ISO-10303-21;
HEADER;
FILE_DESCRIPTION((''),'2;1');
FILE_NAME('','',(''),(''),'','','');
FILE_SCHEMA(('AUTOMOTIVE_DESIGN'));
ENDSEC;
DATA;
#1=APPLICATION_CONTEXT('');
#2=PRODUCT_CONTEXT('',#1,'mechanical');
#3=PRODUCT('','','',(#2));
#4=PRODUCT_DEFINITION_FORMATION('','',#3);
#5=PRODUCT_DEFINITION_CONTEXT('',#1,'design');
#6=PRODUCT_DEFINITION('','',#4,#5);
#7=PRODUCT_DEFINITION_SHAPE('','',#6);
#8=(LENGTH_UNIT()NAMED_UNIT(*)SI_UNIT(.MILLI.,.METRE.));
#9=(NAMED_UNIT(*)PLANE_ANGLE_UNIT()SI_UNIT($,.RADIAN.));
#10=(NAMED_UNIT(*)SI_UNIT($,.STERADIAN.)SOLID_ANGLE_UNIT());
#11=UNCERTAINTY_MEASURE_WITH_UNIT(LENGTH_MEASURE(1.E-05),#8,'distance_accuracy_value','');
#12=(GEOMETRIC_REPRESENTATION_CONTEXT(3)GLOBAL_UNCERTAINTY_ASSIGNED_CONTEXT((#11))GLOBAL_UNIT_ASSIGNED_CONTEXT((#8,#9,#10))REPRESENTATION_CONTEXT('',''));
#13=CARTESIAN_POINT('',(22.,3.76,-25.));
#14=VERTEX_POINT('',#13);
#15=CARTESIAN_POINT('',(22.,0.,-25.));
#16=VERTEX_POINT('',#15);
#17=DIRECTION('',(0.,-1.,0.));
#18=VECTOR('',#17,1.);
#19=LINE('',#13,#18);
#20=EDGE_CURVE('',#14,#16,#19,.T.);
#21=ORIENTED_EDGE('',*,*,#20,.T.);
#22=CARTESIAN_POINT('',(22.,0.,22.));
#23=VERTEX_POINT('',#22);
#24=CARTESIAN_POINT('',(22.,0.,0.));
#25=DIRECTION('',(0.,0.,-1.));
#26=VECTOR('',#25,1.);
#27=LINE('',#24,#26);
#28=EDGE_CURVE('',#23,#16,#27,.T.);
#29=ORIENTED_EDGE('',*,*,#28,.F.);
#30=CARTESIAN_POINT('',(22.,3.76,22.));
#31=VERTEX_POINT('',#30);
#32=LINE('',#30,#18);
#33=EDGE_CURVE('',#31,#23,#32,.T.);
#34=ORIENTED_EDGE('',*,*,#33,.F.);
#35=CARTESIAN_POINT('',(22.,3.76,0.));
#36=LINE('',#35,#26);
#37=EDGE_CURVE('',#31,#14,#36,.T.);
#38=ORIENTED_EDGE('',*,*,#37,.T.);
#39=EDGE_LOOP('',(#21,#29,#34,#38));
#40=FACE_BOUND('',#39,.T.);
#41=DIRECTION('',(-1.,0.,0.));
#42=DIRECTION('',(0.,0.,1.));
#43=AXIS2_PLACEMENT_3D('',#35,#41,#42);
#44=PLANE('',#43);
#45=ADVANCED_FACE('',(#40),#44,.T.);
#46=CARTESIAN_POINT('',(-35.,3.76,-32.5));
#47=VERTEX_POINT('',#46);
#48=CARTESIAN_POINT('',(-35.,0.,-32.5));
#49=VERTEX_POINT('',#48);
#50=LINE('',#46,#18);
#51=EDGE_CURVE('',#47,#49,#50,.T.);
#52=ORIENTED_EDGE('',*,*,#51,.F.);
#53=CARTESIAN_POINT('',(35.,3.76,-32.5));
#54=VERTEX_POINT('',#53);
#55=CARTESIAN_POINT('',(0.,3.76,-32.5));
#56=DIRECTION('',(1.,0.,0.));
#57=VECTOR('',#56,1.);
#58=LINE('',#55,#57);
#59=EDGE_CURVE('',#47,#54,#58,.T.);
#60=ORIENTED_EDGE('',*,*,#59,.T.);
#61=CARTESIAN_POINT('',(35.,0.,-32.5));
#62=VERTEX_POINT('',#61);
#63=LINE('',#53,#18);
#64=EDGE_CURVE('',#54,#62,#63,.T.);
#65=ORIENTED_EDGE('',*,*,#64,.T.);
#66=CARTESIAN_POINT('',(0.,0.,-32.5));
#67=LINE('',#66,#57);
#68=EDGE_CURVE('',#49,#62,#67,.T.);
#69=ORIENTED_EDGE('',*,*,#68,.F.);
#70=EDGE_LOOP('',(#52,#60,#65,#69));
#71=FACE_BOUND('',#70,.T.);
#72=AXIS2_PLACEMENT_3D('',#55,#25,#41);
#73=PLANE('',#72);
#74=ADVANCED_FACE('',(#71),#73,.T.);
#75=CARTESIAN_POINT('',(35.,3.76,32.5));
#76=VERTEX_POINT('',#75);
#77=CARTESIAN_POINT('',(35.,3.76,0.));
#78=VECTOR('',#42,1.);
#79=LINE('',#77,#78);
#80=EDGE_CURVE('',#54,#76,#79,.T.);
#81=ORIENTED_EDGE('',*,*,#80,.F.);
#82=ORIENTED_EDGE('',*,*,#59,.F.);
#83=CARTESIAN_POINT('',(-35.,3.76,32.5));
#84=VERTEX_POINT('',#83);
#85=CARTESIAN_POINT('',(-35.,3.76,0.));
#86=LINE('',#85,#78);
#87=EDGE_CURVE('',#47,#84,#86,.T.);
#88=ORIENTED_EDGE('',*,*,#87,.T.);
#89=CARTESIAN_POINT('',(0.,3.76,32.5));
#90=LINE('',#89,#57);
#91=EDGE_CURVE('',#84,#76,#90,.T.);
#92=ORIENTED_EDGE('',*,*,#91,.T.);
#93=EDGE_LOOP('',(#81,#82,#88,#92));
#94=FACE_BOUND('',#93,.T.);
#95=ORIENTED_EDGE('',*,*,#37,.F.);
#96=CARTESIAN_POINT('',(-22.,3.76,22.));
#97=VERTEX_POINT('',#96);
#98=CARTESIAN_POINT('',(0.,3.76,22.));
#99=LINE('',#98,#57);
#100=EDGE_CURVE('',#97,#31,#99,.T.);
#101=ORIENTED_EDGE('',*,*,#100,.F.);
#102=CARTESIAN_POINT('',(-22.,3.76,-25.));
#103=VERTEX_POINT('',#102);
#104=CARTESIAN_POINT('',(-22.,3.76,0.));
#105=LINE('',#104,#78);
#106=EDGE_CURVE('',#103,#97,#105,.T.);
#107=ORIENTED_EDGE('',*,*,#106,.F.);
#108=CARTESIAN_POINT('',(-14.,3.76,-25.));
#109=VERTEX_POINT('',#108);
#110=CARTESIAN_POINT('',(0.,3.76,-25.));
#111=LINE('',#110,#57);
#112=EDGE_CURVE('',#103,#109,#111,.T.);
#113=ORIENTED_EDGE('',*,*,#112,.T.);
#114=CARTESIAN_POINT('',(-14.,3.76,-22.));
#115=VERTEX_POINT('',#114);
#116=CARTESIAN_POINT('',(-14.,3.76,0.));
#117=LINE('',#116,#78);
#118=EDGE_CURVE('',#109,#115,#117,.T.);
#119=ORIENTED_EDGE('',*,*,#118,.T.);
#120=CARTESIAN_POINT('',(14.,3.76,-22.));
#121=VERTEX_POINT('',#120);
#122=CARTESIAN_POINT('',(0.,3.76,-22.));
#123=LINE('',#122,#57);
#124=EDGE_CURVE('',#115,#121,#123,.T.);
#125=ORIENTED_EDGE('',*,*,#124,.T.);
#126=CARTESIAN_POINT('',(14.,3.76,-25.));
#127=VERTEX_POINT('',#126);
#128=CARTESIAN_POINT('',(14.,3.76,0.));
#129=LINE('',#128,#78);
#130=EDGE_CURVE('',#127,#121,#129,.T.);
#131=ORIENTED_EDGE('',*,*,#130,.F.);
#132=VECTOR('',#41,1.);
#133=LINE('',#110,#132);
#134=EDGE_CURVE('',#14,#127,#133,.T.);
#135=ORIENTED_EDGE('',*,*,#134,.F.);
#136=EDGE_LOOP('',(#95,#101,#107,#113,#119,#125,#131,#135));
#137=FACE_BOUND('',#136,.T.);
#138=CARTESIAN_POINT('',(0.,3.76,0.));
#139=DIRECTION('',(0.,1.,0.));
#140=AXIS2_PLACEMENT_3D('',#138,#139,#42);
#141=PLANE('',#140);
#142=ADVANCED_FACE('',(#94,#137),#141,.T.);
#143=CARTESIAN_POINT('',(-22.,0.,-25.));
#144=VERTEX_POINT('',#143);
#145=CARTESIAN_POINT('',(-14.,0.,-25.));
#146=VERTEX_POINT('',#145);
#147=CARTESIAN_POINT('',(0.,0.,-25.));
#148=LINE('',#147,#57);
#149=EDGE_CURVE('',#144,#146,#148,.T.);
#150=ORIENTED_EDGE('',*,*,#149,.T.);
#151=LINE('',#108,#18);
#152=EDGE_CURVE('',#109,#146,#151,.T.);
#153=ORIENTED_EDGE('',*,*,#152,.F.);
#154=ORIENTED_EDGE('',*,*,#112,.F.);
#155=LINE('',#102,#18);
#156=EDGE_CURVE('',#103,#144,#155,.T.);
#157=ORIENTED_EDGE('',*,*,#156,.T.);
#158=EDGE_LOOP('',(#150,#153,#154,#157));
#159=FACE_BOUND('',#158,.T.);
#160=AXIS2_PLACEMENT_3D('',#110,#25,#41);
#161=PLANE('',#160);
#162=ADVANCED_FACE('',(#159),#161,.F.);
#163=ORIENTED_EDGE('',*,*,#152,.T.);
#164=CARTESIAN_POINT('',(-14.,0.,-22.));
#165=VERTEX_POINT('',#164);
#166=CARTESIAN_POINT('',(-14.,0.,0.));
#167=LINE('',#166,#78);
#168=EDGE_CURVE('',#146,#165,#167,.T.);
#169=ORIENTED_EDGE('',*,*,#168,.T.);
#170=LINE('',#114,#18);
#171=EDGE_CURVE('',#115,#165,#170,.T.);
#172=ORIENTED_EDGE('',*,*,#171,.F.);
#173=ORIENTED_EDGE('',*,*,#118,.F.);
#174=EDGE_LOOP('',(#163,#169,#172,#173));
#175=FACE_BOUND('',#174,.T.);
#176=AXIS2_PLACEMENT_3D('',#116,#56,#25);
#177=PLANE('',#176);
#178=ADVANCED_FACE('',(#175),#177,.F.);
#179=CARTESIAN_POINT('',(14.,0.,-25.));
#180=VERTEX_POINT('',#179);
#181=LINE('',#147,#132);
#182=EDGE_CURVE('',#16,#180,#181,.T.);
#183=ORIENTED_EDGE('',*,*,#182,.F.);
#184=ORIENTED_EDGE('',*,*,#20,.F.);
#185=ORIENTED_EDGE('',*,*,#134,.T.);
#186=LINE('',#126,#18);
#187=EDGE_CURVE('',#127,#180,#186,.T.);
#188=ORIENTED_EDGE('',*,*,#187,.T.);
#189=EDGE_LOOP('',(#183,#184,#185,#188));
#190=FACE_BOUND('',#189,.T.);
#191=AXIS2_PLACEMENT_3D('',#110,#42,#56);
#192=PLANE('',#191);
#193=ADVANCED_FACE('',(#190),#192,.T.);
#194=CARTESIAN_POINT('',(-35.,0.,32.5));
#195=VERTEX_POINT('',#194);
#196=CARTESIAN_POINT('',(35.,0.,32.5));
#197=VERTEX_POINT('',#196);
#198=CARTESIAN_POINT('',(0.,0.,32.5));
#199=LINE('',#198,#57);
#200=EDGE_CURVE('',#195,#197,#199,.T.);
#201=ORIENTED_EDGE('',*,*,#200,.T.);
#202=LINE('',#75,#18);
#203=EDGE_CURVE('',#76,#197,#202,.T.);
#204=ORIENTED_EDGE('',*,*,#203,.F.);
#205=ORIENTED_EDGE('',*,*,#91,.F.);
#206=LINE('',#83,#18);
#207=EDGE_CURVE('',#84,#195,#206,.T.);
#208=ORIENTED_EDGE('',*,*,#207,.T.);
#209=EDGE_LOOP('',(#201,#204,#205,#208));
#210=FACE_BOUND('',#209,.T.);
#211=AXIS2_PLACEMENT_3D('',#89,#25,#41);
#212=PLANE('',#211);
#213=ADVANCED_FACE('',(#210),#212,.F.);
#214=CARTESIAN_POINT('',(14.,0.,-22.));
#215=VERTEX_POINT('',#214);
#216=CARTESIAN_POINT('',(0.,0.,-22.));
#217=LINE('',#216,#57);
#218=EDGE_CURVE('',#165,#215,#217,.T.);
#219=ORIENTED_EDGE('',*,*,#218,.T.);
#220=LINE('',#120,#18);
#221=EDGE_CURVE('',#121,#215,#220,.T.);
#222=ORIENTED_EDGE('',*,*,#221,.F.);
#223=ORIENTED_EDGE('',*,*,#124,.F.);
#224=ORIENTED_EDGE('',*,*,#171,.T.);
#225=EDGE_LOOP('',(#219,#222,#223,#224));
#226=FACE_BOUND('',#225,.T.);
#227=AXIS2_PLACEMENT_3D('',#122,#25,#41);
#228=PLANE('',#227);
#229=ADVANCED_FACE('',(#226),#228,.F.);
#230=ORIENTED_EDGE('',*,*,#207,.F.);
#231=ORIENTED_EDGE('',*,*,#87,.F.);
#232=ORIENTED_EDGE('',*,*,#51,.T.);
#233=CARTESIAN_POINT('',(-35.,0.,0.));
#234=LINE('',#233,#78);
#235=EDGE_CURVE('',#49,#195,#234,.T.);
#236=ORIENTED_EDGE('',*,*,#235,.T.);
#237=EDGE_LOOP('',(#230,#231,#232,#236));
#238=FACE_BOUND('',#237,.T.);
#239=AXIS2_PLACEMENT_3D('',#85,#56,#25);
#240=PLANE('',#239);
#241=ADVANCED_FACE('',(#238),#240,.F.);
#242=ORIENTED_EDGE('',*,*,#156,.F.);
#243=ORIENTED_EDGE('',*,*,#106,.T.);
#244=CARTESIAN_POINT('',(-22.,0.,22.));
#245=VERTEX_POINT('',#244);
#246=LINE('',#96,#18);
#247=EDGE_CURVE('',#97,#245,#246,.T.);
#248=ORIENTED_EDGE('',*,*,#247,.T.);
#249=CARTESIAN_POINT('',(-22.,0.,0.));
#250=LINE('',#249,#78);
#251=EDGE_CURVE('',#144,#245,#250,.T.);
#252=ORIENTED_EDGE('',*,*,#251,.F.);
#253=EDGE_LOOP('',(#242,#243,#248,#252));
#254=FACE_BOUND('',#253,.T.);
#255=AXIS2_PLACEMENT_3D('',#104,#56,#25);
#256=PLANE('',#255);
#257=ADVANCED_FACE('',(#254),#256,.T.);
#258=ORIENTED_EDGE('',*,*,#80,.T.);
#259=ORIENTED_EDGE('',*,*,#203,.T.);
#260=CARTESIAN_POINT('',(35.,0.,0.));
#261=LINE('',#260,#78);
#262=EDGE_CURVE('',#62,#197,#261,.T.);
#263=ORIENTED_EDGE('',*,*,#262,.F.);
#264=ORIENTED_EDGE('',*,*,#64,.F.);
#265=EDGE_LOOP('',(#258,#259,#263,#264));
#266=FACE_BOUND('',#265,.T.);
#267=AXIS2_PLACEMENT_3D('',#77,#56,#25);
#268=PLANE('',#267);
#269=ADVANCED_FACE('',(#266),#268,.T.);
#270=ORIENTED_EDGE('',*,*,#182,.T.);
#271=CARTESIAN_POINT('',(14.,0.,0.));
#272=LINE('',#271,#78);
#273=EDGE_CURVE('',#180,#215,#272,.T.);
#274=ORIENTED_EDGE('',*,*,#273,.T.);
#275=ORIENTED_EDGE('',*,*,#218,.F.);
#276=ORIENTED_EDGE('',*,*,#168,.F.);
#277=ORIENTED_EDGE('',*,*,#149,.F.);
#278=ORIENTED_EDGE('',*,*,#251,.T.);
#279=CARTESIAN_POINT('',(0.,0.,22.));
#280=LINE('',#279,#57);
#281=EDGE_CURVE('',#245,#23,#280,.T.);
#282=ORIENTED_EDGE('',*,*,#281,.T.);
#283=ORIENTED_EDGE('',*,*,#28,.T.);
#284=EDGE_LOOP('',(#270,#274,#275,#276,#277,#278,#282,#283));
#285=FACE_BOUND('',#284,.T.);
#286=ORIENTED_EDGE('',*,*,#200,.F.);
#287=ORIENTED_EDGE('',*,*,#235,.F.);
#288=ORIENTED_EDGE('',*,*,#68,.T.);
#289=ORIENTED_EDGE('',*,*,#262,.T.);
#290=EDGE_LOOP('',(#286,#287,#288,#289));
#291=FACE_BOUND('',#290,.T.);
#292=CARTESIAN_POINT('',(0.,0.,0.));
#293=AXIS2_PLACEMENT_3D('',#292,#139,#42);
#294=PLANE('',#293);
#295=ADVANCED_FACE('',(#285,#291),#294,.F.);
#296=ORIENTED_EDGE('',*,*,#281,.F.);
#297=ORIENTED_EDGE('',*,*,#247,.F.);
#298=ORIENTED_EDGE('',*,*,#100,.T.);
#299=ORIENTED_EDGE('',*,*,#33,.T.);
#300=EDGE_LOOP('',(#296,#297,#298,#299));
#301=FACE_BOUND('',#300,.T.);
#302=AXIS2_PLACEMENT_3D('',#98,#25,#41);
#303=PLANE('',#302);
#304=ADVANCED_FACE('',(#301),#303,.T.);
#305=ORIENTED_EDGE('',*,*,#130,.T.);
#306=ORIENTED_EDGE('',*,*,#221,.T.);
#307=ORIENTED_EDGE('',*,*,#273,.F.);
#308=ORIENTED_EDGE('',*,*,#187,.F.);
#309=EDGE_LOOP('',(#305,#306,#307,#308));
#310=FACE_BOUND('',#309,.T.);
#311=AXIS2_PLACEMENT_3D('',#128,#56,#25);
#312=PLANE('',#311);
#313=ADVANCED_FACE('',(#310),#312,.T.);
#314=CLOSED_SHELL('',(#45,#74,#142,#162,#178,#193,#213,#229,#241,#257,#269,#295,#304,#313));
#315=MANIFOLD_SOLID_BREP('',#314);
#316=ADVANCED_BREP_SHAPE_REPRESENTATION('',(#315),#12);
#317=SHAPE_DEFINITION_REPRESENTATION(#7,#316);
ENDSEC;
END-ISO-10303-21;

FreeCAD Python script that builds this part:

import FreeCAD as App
import Part
import Sketcher

V = App.Vector
Q = App.Units.Quantity

doc = App.newDocument("Part")
body = doc.addObject("PartDesign::Body", "Body")

# Sketch on XZ plane
sketch1 = body.newObject("Sketcher::SketchObject", "Sketch")
sketch1.AttachmentSupport = (doc.getObject("XZ_Plane"), [""])
sketch1.MapMode = "FlatFace"
sketch1.addGeometry(Part.LineSegment(V(-35, -32.5, 0), V(-35, 32.5, 0)), False)
sketch1.addGeometry(Part.LineSegment(V(-35, 32.5, 0), V(35, 32.5, 0)), False)
sketch1.addGeometry(Part.LineSegment(V(35, 32.5, 0), V(35, -32.5, 0)), False)
sketch1.addGeometry(Part.LineSegment(V(35, -32.5, 0), V(-35, -32.5, 0)), False)
sketch1.addGeometry(Part.LineSegment(V(22, 22, 0), V(-22, 22, 0)), False)
sketch1.addGeometry(Part.LineSegment(V(-22, 22, 0), V(-22, -25, 0)), False)
sketch1.addGeometry(Part.LineSegment(V(-22, -25, 0), V(-14, -25, 0)), False)
sketch1.addGeometry(Part.LineSegment(V(-14, -25, 0), V(-14, -22, 0)), False)
sketch1.addGeometry(Part.LineSegment(V(-14, -22, 0), V(14, -22, 0)), False)
sketch1.addGeometry(Part.LineSegment(V(14, -22, 0), V(14, -25, 0)), False)
sketch1.addGeometry(Part.LineSegment(V(14, -25, 0), V(22, -25, 0)), False)
sketch1.addGeometry(Part.LineSegment(V(22, -25, 0), V(22, 22, 0)), False)
sketch1.addConstraint(Sketcher.Constraint("Coincident", 0, 2, 1, 1))
sketch1.addConstraint(Sketcher.Constraint("Coincident", 1, 2, 2, 1))
sketch1.addConstraint(Sketcher.Constraint("Coincident", 2, 2, 3, 1))
sketch1.addConstraint(Sketcher.Constraint("Coincident", 3, 2, 0, 1))
sketch1.addConstraint(Sketcher.Constraint("Coincident", 4, 2, 5, 1))
sketch1.addConstraint(Sketcher.Constraint("Coincident", 5, 2, 6, 1))
sketch1.addConstraint(Sketcher.Constraint("Coincident", 6, 2, 7, 1))
sketch1.addConstraint(Sketcher.Constraint("Coincident", 7, 2, 8, 1))
sketch1.addConstraint(Sketcher.Constraint("Coincident", 8, 2, 9, 1))
sketch1.addConstraint(Sketcher.Constraint("Coincident", 9, 2, 10, 1))
sketch1.addConstraint(Sketcher.Constraint("Coincident", 10, 2, 11, 1))
sketch1.addConstraint(Sketcher.Constraint("Coincident", 11, 2, 4, 1))
sketch1.addConstraint(Sketcher.Constraint("Vertical", 0))
sketch1.addConstraint(Sketcher.Constraint("Horizontal", 1))
sketch1.addConstraint(Sketcher.Constraint("Vertical", 2))
sketch1.addConstraint(Sketcher.Constraint("Horizontal", 3))
sketch1.addConstraint(Sketcher.Constraint("Horizontal", 4))
sketch1.addConstraint(Sketcher.Constraint("Vertical", 5))
sketch1.addConstraint(Sketcher.Constraint("Horizontal", 6))
sketch1.addConstraint(Sketcher.Constraint("Vertical", 7))
sketch1.addConstraint(Sketcher.Constraint("Horizontal", 8))
sketch1.addConstraint(Sketcher.Constraint("Vertical", 9))
sketch1.addConstraint(Sketcher.Constraint("Horizontal", 10))
sketch1.addConstraint(Sketcher.Constraint("Vertical", 11))
sketch1.addConstraint(Sketcher.Constraint("Symmetric", 0, 2, 2, 2, -1, 1))
sketch1.addConstraint(Sketcher.Constraint("Symmetric", 6, 2, 9, 2, -2))
sketch1.addConstraint(Sketcher.Constraint("Equal", 6, 10))
sketch1.addConstraint(Sketcher.Constraint("DistanceX", 1, 1, 1, 2, Q("70 mm")))
sketch1.addConstraint(Sketcher.Constraint("DistanceX", 4, 2, 4, 1, Q("44 mm")))
sketch1.addConstraint(Sketcher.Constraint("DistanceX", 6, 1, 6, 2, Q("8 mm")))
sketch1.addConstraint(Sketcher.Constraint("DistanceY", 0, 1, 0, 2, Q("65 mm")))
sketch1.addConstraint(Sketcher.Constraint("DistanceY", 5, 2, 5, 1, Q("47 mm")))
sketch1.addConstraint(Sketcher.Constraint("DistanceY", 7, 1, 7, 2, Q("3 mm")))
sketch1.addConstraint(Sketcher.Constraint("DistanceY", -1, 1, 4, 2, Q("22 mm")))
pad1 = body.newObject("PartDesign::Pad", "Pad")
pad1.Profile = sketch1
pad1.Length = 3.76
pad1.Reversed = True

doc.recompute()
